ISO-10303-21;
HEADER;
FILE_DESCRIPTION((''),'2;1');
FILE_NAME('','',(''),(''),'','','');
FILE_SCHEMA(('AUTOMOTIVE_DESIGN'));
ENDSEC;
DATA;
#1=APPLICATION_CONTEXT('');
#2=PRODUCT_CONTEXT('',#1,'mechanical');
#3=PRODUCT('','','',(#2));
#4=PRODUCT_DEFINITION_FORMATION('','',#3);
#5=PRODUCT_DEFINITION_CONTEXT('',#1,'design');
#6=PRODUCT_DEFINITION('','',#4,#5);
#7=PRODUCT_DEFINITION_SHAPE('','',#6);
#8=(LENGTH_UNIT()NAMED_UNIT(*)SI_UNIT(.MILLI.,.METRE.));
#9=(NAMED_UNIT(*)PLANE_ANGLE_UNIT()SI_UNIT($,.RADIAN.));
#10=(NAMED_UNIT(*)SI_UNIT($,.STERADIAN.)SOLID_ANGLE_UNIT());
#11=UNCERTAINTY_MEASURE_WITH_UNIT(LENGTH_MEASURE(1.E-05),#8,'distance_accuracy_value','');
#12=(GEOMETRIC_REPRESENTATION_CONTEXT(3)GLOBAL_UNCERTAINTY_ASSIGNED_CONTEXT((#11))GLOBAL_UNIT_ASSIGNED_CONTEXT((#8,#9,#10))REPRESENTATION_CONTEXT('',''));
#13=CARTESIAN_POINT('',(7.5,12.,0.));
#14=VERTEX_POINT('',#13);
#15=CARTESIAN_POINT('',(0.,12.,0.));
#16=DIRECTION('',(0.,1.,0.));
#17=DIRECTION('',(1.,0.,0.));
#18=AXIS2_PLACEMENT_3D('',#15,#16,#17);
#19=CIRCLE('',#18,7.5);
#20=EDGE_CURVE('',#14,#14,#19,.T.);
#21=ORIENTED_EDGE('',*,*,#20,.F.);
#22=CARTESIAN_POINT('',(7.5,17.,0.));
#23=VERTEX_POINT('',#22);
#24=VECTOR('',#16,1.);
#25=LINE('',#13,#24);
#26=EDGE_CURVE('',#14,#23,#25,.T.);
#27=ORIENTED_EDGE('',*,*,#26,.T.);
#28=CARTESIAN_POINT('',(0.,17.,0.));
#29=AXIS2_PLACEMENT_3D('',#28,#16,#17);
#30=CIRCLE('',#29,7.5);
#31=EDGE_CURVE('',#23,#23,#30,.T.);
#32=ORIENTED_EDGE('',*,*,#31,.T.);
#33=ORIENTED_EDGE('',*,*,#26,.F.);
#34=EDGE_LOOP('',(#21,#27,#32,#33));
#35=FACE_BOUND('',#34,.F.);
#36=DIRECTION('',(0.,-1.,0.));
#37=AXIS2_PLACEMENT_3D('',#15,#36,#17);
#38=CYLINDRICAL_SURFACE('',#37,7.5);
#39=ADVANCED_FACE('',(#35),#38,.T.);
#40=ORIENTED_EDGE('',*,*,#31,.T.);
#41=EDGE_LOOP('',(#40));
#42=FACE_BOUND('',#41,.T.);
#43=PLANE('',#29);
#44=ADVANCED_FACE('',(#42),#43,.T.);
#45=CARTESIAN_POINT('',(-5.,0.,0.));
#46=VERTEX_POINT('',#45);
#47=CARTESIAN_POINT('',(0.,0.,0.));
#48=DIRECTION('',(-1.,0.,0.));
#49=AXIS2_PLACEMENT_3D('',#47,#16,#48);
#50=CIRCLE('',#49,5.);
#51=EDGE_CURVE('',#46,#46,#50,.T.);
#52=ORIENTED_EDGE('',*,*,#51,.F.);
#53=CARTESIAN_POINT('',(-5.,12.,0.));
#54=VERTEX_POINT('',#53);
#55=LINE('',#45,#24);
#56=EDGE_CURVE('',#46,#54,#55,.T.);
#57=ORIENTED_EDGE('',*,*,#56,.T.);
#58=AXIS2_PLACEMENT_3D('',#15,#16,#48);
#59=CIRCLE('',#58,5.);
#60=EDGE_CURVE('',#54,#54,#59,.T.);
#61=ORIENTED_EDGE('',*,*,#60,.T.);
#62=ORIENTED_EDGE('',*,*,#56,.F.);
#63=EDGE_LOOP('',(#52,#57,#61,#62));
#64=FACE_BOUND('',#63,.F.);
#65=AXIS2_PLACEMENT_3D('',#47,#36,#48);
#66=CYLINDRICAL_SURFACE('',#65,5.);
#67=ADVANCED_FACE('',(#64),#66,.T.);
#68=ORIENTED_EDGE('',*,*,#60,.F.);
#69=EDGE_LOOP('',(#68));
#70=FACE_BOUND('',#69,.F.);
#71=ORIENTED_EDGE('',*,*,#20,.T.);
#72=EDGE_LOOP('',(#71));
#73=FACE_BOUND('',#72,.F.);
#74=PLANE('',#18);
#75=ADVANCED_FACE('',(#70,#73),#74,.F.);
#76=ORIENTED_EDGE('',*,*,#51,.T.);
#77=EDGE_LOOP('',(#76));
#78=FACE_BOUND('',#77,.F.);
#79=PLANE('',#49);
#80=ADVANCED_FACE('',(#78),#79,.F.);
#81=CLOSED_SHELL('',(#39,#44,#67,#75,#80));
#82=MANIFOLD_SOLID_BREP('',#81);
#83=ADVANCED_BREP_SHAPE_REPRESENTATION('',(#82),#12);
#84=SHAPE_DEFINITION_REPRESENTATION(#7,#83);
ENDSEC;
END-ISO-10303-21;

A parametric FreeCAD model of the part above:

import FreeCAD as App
import Part
import Sketcher

V = App.Vector

doc = App.newDocument("Part")
body = doc.addObject("PartDesign::Body", "Body")

sketch1 = doc.addObject("Sketcher::SketchObject", "Sketch")
body.addObject(sketch1)
sketch1.AttachmentSupport = (doc.XZ_Plane, [""])
sketch1.MapMode = "FlatFace"
sketch1.addGeometry(Part.Circle(V(0, 0, 0), V(0, 0, 1), 5), False)
sketch1.addConstraint([
    Sketcher.Constraint("Coincident", 0, 3, -1, 1),
    Sketcher.Constraint("Diameter", 0, 10.0),
])
pad1 = doc.addObject("PartDesign::Pad", "Pad")
body.addObject(pad1)
pad1.Profile = sketch1
pad1.Length = 12
pad1.Reversed = True

sketch2 = doc.addObject("Sketcher::SketchObject", "Sketch001")
body.addObject(sketch2)
sketch2.AttachmentSupport = (doc.XZ_Plane, [""])
sketch2.MapMode = "FlatFace"
sketch2.AttachmentOffset = App.Placement(V(0, 0, -12), App.Rotation())
sketch2.addGeometry(Part.Circle(V(0, 0, 0), V(0, 0, 1), 8), False)
sketch2.addConstraint([
    Sketcher.Constraint("Coincident", 0, 3, -1, 1),
    Sketcher.Constraint("Diameter", 0, 15.0),
])
pad2 = doc.addObject("PartDesign::Pad", "Pad001")
body.addObject(pad2)
pad2.Profile = sketch2
pad2.Length = 5
pad2.Reversed = True

doc.recompute()
